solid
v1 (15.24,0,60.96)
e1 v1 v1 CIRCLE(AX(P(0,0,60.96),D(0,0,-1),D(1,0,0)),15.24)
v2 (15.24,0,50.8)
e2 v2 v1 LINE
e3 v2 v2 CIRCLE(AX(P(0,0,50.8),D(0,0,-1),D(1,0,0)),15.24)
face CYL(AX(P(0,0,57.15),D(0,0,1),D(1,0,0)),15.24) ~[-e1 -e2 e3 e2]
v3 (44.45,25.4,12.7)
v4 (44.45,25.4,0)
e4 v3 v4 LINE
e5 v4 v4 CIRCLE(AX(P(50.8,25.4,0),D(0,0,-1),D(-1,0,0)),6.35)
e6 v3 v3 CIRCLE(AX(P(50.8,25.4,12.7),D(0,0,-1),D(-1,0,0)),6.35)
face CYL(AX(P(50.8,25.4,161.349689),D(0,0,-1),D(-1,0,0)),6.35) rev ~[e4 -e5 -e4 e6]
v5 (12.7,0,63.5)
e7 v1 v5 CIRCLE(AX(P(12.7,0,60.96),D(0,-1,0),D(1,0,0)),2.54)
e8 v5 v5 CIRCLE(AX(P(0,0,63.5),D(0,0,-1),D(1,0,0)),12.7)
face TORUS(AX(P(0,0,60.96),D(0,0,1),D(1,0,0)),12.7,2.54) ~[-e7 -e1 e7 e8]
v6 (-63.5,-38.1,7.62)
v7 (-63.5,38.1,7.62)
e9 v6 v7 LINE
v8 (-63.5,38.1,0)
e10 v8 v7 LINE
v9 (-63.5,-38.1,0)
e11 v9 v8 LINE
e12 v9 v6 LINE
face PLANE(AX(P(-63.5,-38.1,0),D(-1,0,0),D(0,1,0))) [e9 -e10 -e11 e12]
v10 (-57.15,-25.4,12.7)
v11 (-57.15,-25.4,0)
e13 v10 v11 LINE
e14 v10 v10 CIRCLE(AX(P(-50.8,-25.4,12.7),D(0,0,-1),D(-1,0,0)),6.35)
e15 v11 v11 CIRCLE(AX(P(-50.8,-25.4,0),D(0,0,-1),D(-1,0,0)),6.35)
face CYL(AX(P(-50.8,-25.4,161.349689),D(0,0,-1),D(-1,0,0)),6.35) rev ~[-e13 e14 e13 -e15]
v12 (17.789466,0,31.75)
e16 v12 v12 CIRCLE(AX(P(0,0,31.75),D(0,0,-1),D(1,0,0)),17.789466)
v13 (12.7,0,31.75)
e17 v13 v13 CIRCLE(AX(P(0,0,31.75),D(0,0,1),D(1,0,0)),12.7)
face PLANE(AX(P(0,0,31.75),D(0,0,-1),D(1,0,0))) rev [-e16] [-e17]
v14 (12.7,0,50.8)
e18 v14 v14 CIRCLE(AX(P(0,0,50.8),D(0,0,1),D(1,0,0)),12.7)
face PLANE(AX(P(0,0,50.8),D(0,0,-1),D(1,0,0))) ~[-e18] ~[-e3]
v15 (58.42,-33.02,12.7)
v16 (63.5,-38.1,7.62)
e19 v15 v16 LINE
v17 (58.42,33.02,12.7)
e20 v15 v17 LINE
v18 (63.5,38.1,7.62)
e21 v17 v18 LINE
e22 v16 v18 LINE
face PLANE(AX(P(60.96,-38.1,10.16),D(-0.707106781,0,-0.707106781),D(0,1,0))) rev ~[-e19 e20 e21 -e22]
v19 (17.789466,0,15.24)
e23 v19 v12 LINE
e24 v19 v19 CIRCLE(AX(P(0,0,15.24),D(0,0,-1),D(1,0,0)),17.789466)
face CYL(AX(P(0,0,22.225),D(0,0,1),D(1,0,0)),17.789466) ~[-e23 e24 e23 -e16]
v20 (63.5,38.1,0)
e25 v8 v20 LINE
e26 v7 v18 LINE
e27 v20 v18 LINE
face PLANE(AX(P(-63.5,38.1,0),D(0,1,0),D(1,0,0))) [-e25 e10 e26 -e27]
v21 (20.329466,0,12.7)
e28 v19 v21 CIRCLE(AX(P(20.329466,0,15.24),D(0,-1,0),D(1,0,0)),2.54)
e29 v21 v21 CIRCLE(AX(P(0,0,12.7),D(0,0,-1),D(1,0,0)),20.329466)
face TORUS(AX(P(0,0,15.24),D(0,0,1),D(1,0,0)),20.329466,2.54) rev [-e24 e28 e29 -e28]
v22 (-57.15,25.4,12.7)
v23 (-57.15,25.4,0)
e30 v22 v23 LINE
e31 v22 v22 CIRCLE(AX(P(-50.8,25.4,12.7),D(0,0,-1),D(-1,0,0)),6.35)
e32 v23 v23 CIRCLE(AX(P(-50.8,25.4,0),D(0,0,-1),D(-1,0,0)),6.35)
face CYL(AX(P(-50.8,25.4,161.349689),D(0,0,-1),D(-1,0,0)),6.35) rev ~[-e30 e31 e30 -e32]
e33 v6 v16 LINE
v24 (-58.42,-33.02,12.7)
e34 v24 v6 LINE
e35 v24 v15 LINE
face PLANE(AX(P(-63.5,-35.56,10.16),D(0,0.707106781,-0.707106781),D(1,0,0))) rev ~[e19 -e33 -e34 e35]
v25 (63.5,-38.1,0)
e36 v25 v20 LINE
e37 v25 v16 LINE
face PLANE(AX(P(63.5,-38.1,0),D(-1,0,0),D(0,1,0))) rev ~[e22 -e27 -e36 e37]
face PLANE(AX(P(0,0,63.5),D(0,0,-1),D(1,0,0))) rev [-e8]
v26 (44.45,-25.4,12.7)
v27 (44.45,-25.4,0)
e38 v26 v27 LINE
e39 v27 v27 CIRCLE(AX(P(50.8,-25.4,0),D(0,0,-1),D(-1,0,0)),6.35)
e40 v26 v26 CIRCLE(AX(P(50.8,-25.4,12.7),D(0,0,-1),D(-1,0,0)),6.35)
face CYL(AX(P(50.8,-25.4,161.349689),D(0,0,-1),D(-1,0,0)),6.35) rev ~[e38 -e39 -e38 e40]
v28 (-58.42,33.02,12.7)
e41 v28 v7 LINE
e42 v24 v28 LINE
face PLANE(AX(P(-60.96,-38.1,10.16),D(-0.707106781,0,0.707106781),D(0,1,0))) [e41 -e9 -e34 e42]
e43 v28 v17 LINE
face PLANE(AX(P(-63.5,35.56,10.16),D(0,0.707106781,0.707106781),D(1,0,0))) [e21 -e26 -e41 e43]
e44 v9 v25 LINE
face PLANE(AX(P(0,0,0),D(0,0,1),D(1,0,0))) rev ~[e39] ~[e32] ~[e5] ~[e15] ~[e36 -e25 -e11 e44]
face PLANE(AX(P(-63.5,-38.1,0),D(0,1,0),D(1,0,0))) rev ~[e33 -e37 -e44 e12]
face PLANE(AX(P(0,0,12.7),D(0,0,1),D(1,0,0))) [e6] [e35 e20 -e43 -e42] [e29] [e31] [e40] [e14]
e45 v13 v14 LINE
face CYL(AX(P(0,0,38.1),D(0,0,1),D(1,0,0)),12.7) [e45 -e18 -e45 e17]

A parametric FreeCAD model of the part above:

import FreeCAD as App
import Part
import Sketcher

V = App.Vector
Q = App.Units.Quantity


def edges_at(feature, points):
    """Names of the edges that pass closest to the given points."""
    edges = feature.Shape.Edges
    near = lambda p: min(range(len(edges)), key=lambda i: edges[i].distToShape(Part.Vertex(*p))[0])
    return sorted({f"Edge{near(p) + 1}" for p in points})


def add_polygon(sketch, points):
    """Adds a closed chain of lines whose ends are joined by coincident constraints."""
    first, n = sketch.GeometryCount, len(points)
    for a, b in zip(points, points[1:] + points[:1]):
        sketch.addGeometry(Part.LineSegment(App.Vector(*a, 0), App.Vector(*b, 0)), False)
    for i in range(n):
        sketch.addConstraint(Sketcher.Constraint("Coincident", first + i, 2, first + (i + 1) % n, 1))

doc = App.newDocument("Part")
body = doc.addObject("PartDesign::Body", "Body")

# Sketch on XY plane
sketch1 = body.newObject("Sketcher::SketchObject", "Sketch")
sketch1.AttachmentSupport = (doc.getObject("XY_Plane"), [""])
sketch1.MapMode = "FlatFace"
add_polygon(sketch1, [(-64, 38), (-64, -38), (64, -38), (64, 38)])  # lines 0-3
sketch1.addConstraint([
    Sketcher.Constraint("Vertical", 0),
    Sketcher.Constraint("Horizontal", 1),
    Sketcher.Constraint("Vertical", 2),
    Sketcher.Constraint("Horizontal", 3),
    Sketcher.Constraint("Symmetric", 0, 2, 2, 2, -1, 1),
    Sketcher.Constraint("DistanceX", 1, 1, 1, 2, Q("5 in")),
    Sketcher.Constraint("DistanceY", 0, 2, 0, 1, Q("3 in")),
])
pad1 = body.newObject("PartDesign::Pad", "Pad")
pad1.Profile = sketch1
pad1.Length = Q("0.5 in")

# Sketch on XY plane
sketch2 = body.newObject("Sketcher::SketchObject", "Sketch001")
sketch2.AttachmentSupport = (doc.getObject("XY_Plane"), [""])
sketch2.MapMode = "FlatFace"
sketch2.AttachmentOffset = App.Placement(V(0, 0, 0.5 * 25.4), App.Rotation())
sketch2.addGeometry(Part.Circle(V(-51, 25, 0), V(0, 0, 1), 6), False)
sketch2.addConstraint([
    Sketcher.Constraint("Diameter", 0, Q("0.5 in")),
    Sketcher.Constraint("DistanceX", 0, 3, -1, 1, Q("2 in")),
    Sketcher.Constraint("DistanceY", -1, 1, 0, 3, Q("1 in")),
])
doc.recompute()
hole = body.newObject("PartDesign::Hole", "Hole")
hole.Profile = sketch2
hole.ThreadType = "None"
hole.Diameter = Q("0.5 in")
hole.DepthType = "ThroughAll"

# Sketch on XY plane
sketch3 = body.newObject("Sketcher::SketchObject", "Sketch002")
sketch3.AttachmentSupport = (doc.getObject("XY_Plane"), [""])
sketch3.MapMode = "FlatFace"
sketch3.AttachmentOffset = App.Placement(V(0, 0, 0.5 * 25.4), App.Rotation())
sketch3.addGeometry(Part.Circle(V(51, 25, 0), V(0, 0, 1), 6), False)
sketch3.addConstraint([
    Sketcher.Constraint("Diameter", 0, Q("0.5 in")),
    Sketcher.Constraint("DistanceX", -1, 1, 0, 3, Q("2 in")),
    Sketcher.Constraint("DistanceY", -1, 1, 0, 3, Q("1 in")),
])
doc.recompute()
hole2 = body.newObject("PartDesign::Hole", "Hole001")
hole2.Profile = sketch3
hole2.ThreadType = "None"
hole2.Diameter = Q("0.5 in")
hole2.DepthType = "ThroughAll"

# Sketch on XY plane
sketch4 = body.newObject("Sketcher::SketchObject", "Sketch003")
sketch4.AttachmentSupport = (doc.getObject("XY_Plane"), [""])
sketch4.MapMode = "FlatFace"
sketch4.AttachmentOffset = App.Placement(V(0, 0, 0.5 * 25.4), App.Rotation())
sketch4.addGeometry(Part.Circle(V(-51, -25, 0), V(0, 0, 1), 6), False)
sketch4.addConstraint([
    Sketcher.Constraint("Diameter", 0, Q("0.5 in")),
    Sketcher.Constraint("DistanceX", 0, 3, -1, 1, Q("2 in")),
    Sketcher.Constraint("DistanceY", 0, 3, -1, 1, Q("1 in")),
])
doc.recompute()
hole3 = body.newObject("PartDesign::Hole", "Hole002")
hole3.Profile = sketch4
hole3.ThreadType = "None"
hole3.Diameter = Q("0.5 in")
hole3.DepthType = "ThroughAll"

# Sketch on XY plane
sketch5 = body.newObject("Sketcher::SketchObject", "Sketch004")
sketch5.AttachmentSupport = (doc.getObject("XY_Plane"), [""])
sketch5.MapMode = "FlatFace"
sketch5.AttachmentOffset = App.Placement(V(0, 0, 0.5 * 25.4), App.Rotation())
sketch5.addGeometry(Part.Circle(V(51, -25, 0), V(0, 0, 1), 6), False)
sketch5.addConstraint([
    Sketcher.Constraint("Diameter", 0, Q("0.5 in")),
    Sketcher.Constraint("DistanceX", -1, 1, 0, 3, Q("2 in")),
    Sketcher.Constraint("DistanceY", 0, 3, -1, 1, Q("1 in")),
])
doc.recompute()
hole4 = body.newObject("PartDesign::Hole", "Hole003")
hole4.Profile = sketch5
hole4.ThreadType = "None"
hole4.Diameter = Q("0.5 in")
hole4.DepthType = "ThroughAll"

# Sketch on XZ plane
sketch6 = body.newObject("Sketcher::SketchObject", "Sketch005")
sketch6.AttachmentSupport = (doc.getObject("XZ_Plane"), [""])
sketch6.MapMode = "FlatFace"
add_polygon(sketch6, [(0, 64), (0, 13), (13, 13), (13, 64)])  # lines 0-3
sketch6.addConstraint([
    Sketcher.Constraint("Vertical", 0),
    Sketcher.Constraint("Horizontal", 1),
    Sketcher.Constraint("Vertical", 2),
    Sketcher.Constraint("Horizontal", 3),
    Sketcher.Constraint("PointOnObject", 0, 2, -2),
    Sketcher.Constraint("DistanceY", 0, 2, 0, 1, Q("2 in")),
    Sketcher.Constraint("DistanceX", 1, 1, 1, 2, Q("0.5 in")),
    Sketcher.Constraint("DistanceY", -1, 1, 0, 2, Q("0.5 in")),
])
revolution = body.newObject("PartDesign::Revolution", "Revolution")
revolution.Profile = sketch6
revolution.ReferenceAxis = (sketch6, ["V_Axis"])
revolution.Angle = 360

# Sketch on XZ plane
sketch7 = body.newObject("Sketcher::SketchObject", "Sketch006")
sketch7.AttachmentSupport = (doc.getObject("XZ_Plane"), [""])
sketch7.MapMode = "FlatFace"
add_polygon(sketch7, [(0, 32), (0, 13), (18, 13), (18, 32)])  # lines 0-3
sketch7.addConstraint([
    Sketcher.Constraint("Vertical", 0),
    Sketcher.Constraint("Horizontal", 1),
    Sketcher.Constraint("Vertical", 2),
    Sketcher.Constraint("Horizontal", 3),
    Sketcher.Constraint("PointOnObject", 0, 2, -2),
    Sketcher.Constraint("DistanceY", 0, 2, 0, 1, Q("0.75 in")),
    Sketcher.Constraint("DistanceY", -1, 1, 0, 2, Q("0.5 in")),
    Sketcher.Constraint("DistanceX", 1, 1, 1, 2, 17.789466),
])
revolution2 = body.newObject("PartDesign::Revolution", "Revolution001")
revolution2.Profile = sketch7
revolution2.ReferenceAxis = (sketch7, ["V_Axis"])
revolution2.Angle = 360

# Sketch on XZ plane
sketch8 = body.newObject("Sketcher::SketchObject", "Sketch007")
sketch8.AttachmentSupport = (doc.getObject("XZ_Plane"), [""])
sketch8.MapMode = "FlatFace"
add_polygon(sketch8, [(0, 64), (0, 51), (15, 51), (15, 64)])  # lines 0-3
sketch8.addConstraint([
    Sketcher.Constraint("Vertical", 0),
    Sketcher.Constraint("Horizontal", 1),
    Sketcher.Constraint("Vertical", 2),
    Sketcher.Constraint("Horizontal", 3),
    Sketcher.Constraint("PointOnObject", 0, 2, -2),
    Sketcher.Constraint("DistanceX", 1, 1, 1, 2, Q("0.6 in")),
    Sketcher.Constraint("DistanceY", 0, 2, 0, 1, Q("0.5 in")),
    Sketcher.Constraint("DistanceY", -1, 1, 0, 2, Q("2 in")),
])
revolution3 = body.newObject("PartDesign::Revolution", "Revolution002")
revolution3.Profile = sketch8
revolution3.ReferenceAxis = (sketch8, ["V_Axis"])
revolution3.Angle = 360
doc.recompute()

fillet = body.newObject("PartDesign::Fillet", "Fillet")
fillet.Base = (revolution3, edges_at(revolution3, [(-15.24, 0, 63.5), (-17.789, 0, 12.7)]))
fillet.Radius = Q("0.1 in")
doc.recompute()

chamfer = body.newObject("PartDesign::Chamfer", "Chamfer")
chamfer.Base = (fillet, edges_at(fillet, [
    (-63.5, 0, 12.7),
    (63.5, 0, 12.7),
    (0, -38.1, 12.7),
    (0, 38.1, 12.7),
]))
chamfer.Size = Q("0.2 in")

doc.recompute()
